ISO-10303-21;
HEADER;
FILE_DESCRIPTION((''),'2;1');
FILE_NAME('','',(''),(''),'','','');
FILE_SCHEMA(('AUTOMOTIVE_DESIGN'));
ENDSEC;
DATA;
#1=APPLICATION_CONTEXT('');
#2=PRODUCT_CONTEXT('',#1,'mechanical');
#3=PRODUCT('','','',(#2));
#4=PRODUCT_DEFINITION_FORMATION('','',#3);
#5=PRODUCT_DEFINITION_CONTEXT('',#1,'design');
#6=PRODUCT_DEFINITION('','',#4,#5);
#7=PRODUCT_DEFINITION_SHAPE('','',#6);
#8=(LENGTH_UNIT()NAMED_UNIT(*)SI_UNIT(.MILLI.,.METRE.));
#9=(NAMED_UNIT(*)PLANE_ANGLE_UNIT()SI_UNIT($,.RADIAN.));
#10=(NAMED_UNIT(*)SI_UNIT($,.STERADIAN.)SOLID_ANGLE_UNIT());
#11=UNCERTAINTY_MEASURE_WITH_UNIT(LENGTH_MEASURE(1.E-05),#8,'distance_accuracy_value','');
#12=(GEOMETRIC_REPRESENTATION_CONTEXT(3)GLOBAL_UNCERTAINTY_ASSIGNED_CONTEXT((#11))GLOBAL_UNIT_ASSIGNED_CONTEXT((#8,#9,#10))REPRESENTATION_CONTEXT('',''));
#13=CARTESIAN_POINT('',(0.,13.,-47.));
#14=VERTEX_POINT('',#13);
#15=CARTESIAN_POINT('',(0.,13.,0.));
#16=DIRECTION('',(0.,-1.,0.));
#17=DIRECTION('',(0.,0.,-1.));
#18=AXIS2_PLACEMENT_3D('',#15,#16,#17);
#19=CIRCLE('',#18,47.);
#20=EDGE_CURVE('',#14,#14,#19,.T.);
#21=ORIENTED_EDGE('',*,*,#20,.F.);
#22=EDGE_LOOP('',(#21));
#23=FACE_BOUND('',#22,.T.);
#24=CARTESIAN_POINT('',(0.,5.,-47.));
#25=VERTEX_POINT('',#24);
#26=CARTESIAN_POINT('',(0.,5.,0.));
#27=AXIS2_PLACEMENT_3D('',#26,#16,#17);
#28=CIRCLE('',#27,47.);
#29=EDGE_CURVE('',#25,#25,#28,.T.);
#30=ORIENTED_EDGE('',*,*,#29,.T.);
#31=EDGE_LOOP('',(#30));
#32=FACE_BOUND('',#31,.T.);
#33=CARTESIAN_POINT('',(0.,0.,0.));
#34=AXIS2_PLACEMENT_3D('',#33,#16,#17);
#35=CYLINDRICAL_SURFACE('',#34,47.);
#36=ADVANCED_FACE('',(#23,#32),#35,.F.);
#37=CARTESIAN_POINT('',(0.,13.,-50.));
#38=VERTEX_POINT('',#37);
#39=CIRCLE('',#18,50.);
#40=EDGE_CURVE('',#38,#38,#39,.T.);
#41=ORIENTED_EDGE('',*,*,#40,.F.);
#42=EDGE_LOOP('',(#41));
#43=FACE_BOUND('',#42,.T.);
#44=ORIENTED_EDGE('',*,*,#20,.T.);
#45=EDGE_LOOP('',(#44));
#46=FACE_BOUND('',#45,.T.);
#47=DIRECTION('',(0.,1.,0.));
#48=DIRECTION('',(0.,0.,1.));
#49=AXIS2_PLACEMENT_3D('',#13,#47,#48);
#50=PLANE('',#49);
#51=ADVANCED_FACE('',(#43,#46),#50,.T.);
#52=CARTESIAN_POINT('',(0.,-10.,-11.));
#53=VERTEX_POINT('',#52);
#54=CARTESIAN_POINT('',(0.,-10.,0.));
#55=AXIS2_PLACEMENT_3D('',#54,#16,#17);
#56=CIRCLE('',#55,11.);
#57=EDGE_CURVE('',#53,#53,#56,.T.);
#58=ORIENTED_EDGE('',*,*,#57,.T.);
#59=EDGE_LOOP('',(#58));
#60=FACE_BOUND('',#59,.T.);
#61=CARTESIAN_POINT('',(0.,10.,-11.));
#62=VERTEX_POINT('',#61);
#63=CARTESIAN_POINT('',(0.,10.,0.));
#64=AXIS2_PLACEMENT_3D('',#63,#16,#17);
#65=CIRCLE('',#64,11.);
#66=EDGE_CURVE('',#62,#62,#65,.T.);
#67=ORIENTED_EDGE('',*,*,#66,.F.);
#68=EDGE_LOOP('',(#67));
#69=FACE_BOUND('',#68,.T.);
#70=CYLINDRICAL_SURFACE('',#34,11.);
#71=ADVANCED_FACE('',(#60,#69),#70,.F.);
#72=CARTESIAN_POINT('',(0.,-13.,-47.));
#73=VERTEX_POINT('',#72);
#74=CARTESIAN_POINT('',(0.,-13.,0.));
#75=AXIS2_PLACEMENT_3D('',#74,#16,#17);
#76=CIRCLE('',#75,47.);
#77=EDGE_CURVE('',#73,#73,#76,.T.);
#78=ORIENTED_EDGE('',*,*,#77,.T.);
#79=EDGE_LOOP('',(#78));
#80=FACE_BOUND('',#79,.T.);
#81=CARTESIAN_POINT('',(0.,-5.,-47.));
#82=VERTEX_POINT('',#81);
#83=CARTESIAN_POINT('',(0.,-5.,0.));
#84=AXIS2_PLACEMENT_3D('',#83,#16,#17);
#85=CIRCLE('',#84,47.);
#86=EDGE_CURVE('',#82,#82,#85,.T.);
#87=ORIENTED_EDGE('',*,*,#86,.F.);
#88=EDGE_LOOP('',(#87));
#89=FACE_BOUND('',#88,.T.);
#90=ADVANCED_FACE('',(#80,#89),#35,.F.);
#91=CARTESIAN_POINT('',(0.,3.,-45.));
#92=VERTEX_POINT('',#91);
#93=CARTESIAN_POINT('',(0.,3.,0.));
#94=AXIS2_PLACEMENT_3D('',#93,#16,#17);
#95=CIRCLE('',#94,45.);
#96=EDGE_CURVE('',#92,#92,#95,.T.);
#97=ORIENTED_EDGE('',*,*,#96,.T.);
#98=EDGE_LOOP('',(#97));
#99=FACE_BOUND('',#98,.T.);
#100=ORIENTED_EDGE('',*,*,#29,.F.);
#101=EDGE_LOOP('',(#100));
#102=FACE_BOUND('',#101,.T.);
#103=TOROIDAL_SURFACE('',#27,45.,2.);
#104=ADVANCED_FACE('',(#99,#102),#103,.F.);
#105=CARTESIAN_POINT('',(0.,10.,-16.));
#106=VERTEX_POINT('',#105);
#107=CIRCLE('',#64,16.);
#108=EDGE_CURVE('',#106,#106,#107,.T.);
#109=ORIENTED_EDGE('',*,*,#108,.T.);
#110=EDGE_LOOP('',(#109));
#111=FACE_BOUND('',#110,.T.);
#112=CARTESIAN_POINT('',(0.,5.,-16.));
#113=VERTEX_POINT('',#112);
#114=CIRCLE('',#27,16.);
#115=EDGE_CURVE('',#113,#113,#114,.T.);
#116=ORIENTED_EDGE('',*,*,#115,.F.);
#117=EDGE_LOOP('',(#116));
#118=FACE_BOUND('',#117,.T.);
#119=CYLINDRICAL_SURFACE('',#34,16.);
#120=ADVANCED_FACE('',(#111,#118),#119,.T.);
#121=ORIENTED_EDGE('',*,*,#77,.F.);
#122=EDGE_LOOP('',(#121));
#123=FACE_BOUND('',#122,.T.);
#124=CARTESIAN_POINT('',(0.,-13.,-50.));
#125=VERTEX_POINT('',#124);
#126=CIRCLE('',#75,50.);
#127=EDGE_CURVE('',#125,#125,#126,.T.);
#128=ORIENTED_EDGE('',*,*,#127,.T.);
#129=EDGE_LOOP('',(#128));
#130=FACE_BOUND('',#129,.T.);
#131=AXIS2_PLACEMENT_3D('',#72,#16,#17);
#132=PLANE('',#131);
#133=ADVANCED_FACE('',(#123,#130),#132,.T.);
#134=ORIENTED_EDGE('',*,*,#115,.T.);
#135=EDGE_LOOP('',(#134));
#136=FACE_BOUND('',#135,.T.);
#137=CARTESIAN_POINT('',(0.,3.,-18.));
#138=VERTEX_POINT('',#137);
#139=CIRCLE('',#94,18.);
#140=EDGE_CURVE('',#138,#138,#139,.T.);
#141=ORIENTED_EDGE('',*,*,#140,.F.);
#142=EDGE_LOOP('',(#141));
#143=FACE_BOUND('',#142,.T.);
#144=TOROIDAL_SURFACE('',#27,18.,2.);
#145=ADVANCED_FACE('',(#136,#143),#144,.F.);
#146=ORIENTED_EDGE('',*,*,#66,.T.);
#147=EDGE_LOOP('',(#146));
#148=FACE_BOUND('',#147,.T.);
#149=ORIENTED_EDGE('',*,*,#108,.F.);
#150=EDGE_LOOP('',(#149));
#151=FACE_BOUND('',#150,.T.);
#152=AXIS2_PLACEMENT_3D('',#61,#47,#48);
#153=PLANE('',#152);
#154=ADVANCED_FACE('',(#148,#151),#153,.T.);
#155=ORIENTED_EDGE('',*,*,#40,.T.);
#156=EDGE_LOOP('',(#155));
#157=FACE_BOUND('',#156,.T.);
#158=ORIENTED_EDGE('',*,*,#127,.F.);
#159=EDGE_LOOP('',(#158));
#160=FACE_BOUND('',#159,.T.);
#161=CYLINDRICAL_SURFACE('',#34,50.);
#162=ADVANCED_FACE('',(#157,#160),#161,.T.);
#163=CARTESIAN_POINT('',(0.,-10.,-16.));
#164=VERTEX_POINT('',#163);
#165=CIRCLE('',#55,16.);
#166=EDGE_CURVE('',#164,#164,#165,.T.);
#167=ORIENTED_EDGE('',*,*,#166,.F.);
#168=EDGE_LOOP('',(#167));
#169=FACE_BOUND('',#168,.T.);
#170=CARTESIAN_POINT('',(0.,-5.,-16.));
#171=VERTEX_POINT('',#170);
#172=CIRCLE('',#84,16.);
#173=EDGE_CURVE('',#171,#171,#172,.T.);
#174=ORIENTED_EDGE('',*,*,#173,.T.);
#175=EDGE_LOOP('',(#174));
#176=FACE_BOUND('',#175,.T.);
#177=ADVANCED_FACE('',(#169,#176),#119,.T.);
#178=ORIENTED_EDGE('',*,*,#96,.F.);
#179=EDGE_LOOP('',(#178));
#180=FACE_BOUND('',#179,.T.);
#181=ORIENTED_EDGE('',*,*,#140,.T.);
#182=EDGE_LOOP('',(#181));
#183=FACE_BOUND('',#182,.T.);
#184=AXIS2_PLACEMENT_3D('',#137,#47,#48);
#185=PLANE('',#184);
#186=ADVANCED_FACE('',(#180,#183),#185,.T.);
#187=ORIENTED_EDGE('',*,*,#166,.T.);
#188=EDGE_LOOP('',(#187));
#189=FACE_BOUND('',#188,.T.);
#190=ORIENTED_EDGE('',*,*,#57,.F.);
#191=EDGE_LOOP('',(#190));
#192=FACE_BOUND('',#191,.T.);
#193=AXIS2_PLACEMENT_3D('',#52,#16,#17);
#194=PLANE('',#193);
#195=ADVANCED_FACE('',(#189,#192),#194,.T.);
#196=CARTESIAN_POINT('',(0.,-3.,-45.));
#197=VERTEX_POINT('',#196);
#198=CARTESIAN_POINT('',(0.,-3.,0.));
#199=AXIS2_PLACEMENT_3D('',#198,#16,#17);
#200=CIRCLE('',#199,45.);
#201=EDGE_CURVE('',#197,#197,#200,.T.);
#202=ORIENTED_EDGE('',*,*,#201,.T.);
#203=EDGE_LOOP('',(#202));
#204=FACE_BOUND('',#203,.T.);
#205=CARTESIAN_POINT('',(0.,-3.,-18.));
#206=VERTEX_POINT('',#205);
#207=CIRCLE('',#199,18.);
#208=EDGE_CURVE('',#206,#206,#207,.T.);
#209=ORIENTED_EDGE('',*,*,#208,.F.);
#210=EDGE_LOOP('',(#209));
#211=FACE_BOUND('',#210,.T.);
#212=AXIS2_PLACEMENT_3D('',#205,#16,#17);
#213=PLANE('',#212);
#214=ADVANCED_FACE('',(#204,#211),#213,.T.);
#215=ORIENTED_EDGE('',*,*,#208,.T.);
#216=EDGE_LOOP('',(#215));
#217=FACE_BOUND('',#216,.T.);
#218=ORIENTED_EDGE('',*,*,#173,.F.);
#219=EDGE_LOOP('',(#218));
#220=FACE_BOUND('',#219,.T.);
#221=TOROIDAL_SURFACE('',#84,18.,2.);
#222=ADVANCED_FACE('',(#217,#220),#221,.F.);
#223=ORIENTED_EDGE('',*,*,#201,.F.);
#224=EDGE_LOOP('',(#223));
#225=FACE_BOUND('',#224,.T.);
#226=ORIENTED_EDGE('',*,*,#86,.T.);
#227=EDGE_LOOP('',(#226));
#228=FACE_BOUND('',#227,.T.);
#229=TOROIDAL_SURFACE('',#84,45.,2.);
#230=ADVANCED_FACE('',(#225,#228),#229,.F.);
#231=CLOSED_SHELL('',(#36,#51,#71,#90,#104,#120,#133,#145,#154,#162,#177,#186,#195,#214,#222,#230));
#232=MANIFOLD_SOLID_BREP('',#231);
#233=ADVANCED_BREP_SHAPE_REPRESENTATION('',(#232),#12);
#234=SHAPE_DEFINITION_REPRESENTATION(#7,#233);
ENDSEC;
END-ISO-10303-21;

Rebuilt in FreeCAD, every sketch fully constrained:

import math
import FreeCAD as App
import Part
import Sketcher
from FreeCAD import Vector

doc = App.newDocument("Part")
body = doc.addObject("PartDesign::Body", "Body")

# Sketch on YZ plane
sketch1 = doc.addObject("Sketcher::SketchObject", "Sketch")
body.addObject(sketch1)
sketch1.AttachmentSupport = (doc.YZ_Plane, [""])
sketch1.MapMode = "FlatFace"
sketch1.addGeometry(Part.LineSegment(Vector(10, -11, 0), Vector(-10, -11, 0)), False)
sketch1.addGeometry(Part.LineSegment(Vector(-10, -11, 0), Vector(-10, -16, 0)), False)
sketch1.addGeometry(Part.LineSegment(Vector(-10, -16, 0), Vector(-5, -16, 0)), False)
sketch1.addGeometry(Part.ArcOfCircle(Part.Circle(Vector(-5, -18, 0), Vector(0, 0, 1), 2), math.radians(0), math.radians(90)), False)
sketch1.addGeometry(Part.LineSegment(Vector(-3, -18, 0), Vector(-3, -45, 0)), False)
sketch1.addGeometry(Part.ArcOfCircle(Part.Circle(Vector(-5, -45, 0), Vector(0, 0, 1), 2), math.radians(-90), math.radians(0)), False)
sketch1.addGeometry(Part.LineSegment(Vector(-5, -47, 0), Vector(-13, -47, 0)), False)
sketch1.addGeometry(Part.LineSegment(Vector(-13, -47, 0), Vector(-13, -50, 0)), False)
sketch1.addGeometry(Part.LineSegment(Vector(-13, -50, 0), Vector(13, -50, 0)), False)
sketch1.addGeometry(Part.LineSegment(Vector(13, -50, 0), Vector(13, -47, 0)), False)
sketch1.addGeometry(Part.LineSegment(Vector(13, -47, 0), Vector(5, -47, 0)), False)
sketch1.addGeometry(Part.ArcOfCircle(Part.Circle(Vector(5, -45, 0), Vector(0, 0, 1), 2), math.radians(-180), math.radians(-90)), False)
sketch1.addGeometry(Part.LineSegment(Vector(3, -45, 0), Vector(3, -18, 0)), False)
sketch1.addGeometry(Part.ArcOfCircle(Part.Circle(Vector(5, -18, 0), Vector(0, 0, 1), 2), math.radians(90), math.radians(180)), False)
sketch1.addGeometry(Part.LineSegment(Vector(5, -16, 0), Vector(10, -16, 0)), False)
sketch1.addGeometry(Part.LineSegment(Vector(10, -16, 0), Vector(10, -11, 0)), False)
sketch1.addConstraint(Sketcher.Constraint("Coincident", 0, 2, 1, 1))
sketch1.addConstraint(Sketcher.Constraint("Coincident", 1, 2, 2, 1))
sketch1.addConstraint(Sketcher.Constraint("Tangent", 2, 2, 3, 2))
sketch1.addConstraint(Sketcher.Constraint("Tangent", 3, 1, 4, 1))
sketch1.addConstraint(Sketcher.Constraint("Tangent", 4, 2, 5, 2))
sketch1.addConstraint(Sketcher.Constraint("Tangent", 5, 1, 6, 1))
sketch1.addConstraint(Sketcher.Constraint("Coincident", 6, 2, 7, 1))
sketch1.addConstraint(Sketcher.Constraint("Coincident", 7, 2, 8, 1))
sketch1.addConstraint(Sketcher.Constraint("Coincident", 8, 2, 9, 1))
sketch1.addConstraint(Sketcher.Constraint("Coincident", 9, 2, 10, 1))
sketch1.addConstraint(Sketcher.Constraint("Tangent", 10, 2, 11, 2))
sketch1.addConstraint(Sketcher.Constraint("Tangent", 11, 1, 12, 1))
sketch1.addConstraint(Sketcher.Constraint("Tangent", 12, 2, 13, 2))
sketch1.addConstraint(Sketcher.Constraint("Tangent", 13, 1, 14, 1))
sketch1.addConstraint(Sketcher.Constraint("Coincident", 14, 2, 15, 1))
sketch1.addConstraint(Sketcher.Constraint("Coincident", 15, 2, 0, 1))
sketch1.addConstraint(Sketcher.Constraint("Horizontal", 0))
sketch1.addConstraint(Sketcher.Constraint("Vertical", 1))
sketch1.addConstraint(Sketcher.Constraint("Horizontal", 2))
sketch1.addConstraint(Sketcher.Constraint("Vertical", 4))
sketch1.addConstraint(Sketcher.Constraint("Horizontal", 6))
sketch1.addConstraint(Sketcher.Constraint("Vertical", 7))
sketch1.addConstraint(Sketcher.Constraint("Horizontal", 8))
sketch1.addConstraint(Sketcher.Constraint("Vertical", 9))
sketch1.addConstraint(Sketcher.Constraint("Horizontal", 10))
sketch1.addConstraint(Sketcher.Constraint("Vertical", 12))
sketch1.addConstraint(Sketcher.Constraint("Horizontal", 14))
sketch1.addConstraint(Sketcher.Constraint("Vertical", 15))
sketch1.addConstraint(Sketcher.Constraint("Equal", 3, 5))
sketch1.addConstraint(Sketcher.Constraint("Equal", 5, 11))
sketch1.addConstraint(Sketcher.Constraint("Equal", 11, 13))
sketch1.addConstraint(Sketcher.Constraint("Symmetric", 5, 3, 11, 3, -2))
sketch1.addConstraint(Sketcher.Constraint("Symmetric", 1, 2, 14, 2, -2))
sketch1.addConstraint(Sketcher.Constraint("Equal", 6, 10))
sketch1.addConstraint(Sketcher.Constraint("Equal", 14, 1))
sketch1.addConstraint(Sketcher.Constraint("Radius", 3, 2.0))
sketch1.addConstraint(Sketcher.Constraint("DistanceX", 0, 2, 0, 1, 20.0))
sketch1.addConstraint(Sketcher.Constraint("DistanceX", 2, 1, 2, 2, 5.0))
sketch1.addConstraint(Sketcher.Constraint("DistanceX", 6, 2, 6, 1, 8.0))
sketch1.addConstraint(Sketcher.Constraint("DistanceY", 4, 2, 4, 1, 27.0))
sketch1.addConstraint(Sketcher.Constraint("DistanceY", 7, 2, 7, 1, 3.0))
sketch1.addConstraint(Sketcher.Constraint("DistanceY", 3, 3, -1, 1, 18.0))
revolution = doc.addObject("PartDesign::Revolution", "Revolution")
body.addObject(revolution)
revolution.Profile = sketch1
revolution.ReferenceAxis = (sketch1, ["H_Axis"])
revolution.Angle = 360

doc.recompute()
